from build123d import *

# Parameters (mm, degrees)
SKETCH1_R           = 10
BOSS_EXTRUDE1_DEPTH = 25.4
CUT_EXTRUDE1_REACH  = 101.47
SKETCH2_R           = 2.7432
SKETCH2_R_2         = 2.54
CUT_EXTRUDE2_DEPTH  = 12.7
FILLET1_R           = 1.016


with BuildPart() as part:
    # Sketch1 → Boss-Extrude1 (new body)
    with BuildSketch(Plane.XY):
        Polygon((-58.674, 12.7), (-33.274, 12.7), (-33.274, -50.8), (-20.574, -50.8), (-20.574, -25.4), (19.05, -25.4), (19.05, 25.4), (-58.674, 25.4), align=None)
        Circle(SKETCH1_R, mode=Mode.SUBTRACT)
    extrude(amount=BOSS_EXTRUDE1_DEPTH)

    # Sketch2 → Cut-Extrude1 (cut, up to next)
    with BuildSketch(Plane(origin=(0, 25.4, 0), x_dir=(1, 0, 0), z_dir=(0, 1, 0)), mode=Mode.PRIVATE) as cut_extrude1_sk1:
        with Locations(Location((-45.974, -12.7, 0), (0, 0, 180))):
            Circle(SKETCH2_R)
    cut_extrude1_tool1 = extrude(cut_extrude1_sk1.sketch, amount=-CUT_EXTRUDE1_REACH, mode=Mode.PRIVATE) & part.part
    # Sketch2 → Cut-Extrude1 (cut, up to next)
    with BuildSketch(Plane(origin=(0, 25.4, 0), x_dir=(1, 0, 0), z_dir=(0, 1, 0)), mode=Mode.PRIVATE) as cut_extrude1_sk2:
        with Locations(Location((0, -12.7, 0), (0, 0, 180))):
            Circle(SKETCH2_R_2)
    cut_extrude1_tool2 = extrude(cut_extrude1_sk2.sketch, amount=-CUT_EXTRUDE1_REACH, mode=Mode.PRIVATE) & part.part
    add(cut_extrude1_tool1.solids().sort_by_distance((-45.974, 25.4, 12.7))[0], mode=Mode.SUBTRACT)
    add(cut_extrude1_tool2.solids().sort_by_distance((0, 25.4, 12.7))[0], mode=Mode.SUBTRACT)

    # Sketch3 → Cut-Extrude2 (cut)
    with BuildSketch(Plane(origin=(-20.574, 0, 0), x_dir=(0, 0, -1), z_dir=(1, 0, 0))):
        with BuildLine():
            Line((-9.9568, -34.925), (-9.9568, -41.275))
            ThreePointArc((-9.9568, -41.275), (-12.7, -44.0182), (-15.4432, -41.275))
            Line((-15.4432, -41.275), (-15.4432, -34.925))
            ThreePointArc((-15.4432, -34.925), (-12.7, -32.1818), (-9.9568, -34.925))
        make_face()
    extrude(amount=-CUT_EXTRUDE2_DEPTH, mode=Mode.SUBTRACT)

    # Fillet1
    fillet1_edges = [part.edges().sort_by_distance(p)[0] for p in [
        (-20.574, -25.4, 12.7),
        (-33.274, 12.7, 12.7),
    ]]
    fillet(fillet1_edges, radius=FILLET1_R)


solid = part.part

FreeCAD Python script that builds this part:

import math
import FreeCAD as App
import Part
import Sketcher
from FreeCAD import Vector
Q = App.Units.Quantity


def edges_at(feature, points):
    """Names of the edges that pass closest to the given points."""
    edges = feature.Shape.Edges
    near = lambda p: min(range(len(edges)), key=lambda i: edges[i].distToShape(Part.Vertex(*p))[0])
    return sorted({f"Edge{near(p) + 1}" for p in points})


def add_polygon(sketch, points):
    """Adds a closed chain of lines whose ends are joined by coincident constraints."""
    first, n = sketch.GeometryCount, len(points)
    for a, b in zip(points, points[1:] + points[:1]):
        sketch.addGeometry(Part.LineSegment(App.Vector(*a, 0), App.Vector(*b, 0)), False)
    for i in range(n):
        sketch.addConstraint(Sketcher.Constraint("Coincident", first + i, 2, first + (i + 1) % n, 1))

doc = App.newDocument("Part")
body = doc.addObject("PartDesign::Body", "Body")

# Sketch on XY plane
sketch1 = body.newObject("Sketcher::SketchObject", "Sketch")
sketch1.AttachmentSupport = (doc.getObject("XY_Plane"), [""])
sketch1.MapMode = "FlatFace"
add_polygon(sketch1, [(-58.674, 12.7), (-33.274, 12.7), (-33.274, -50.8), (-20.574, -50.8), (-20.574, -25.4), (19.05, -25.4), (19.05, 25.4), (-58.674, 25.4)])  # lines 0-7
sketch1.addGeometry(Part.Circle(Vector(0, 0, 0), Vector(0, 0, 1), 10), False)  # 8
sketch1.addConstraint([
    Sketcher.Constraint("Horizontal", 0),
    Sketcher.Constraint("Vertical", 1),
    Sketcher.Constraint("Horizontal", 2),
    Sketcher.Constraint("Vertical", 3),
    Sketcher.Constraint("Horizontal", 4),
    Sketcher.Constraint("Vertical", 5),
    Sketcher.Constraint("Horizontal", 6),
    Sketcher.Constraint("Vertical", 7),
    Sketcher.Constraint("Coincident", 8, 3, -1, 1),
    Sketcher.Constraint("Equal", 0, 3),
    Sketcher.Constraint("Equal", 2, 7),
    Sketcher.Constraint("DistanceX", 0, 1, 0, 2, Q("1 in")),
    Sketcher.Constraint("DistanceY", 5, 1, 5, 2, Q("2 in")),
    Sketcher.Constraint("DistanceX", 2, 1, 2, 2, Q("0.5 in")),
    Sketcher.Constraint("DistanceY", 1, 2, -1, 1, Q("2 in")),
    Sketcher.Constraint("DistanceX", 4, 1, 4, 2, Q("1.56 in")),
    Sketcher.Constraint("Diameter", 8, Q("20 mm")),
    Sketcher.Constraint("DistanceX", 0, 2, -1, 1, Q("1.31 in")),
])
pad1 = body.newObject("PartDesign::Pad", "Pad")
pad1.Profile = sketch1
pad1.Length = Q("1 in")

# Sketch on XZ plane
sketch2 = body.newObject("Sketcher::SketchObject", "Sketch001")
sketch2.AttachmentSupport = (doc.getObject("XZ_Plane"), [""])
sketch2.MapMode = "FlatFace"
sketch2.AttachmentOffset = App.Placement(Vector(0, 0, -1 * 25.4), App.Rotation())
sketch2.addGeometry(Part.Circle(Vector(-45.974, 12.7, 0), Vector(0, 0, 1), 2.7432), False)
sketch2.addConstraint([
    Sketcher.Constraint("Diameter", 0, Q("0.216 in")),
    Sketcher.Constraint("DistanceY", -1, 1, 0, 3, Q("0.5 in")),
    Sketcher.Constraint("DistanceX", 0, 3, -1, 1, Q("1.81 in")),
])
pocket1 = body.newObject("PartDesign::Pocket", "Pocket")
pocket1.Profile = sketch2
pocket1.Type = "UpToFirst"
pocket1.Reversed = True

# Sketch on XZ plane
sketch3 = body.newObject("Sketcher::SketchObject", "Sketch002")
sketch3.AttachmentSupport = (doc.getObject("XZ_Plane"), [""])
sketch3.MapMode = "FlatFace"
sketch3.AttachmentOffset = App.Placement(Vector(0, 0, -1 * 25.4), App.Rotation())
sketch3.addGeometry(Part.Circle(Vector(0, 12.7, 0), Vector(0, 0, 1), 2.54), False)
sketch3.addConstraint([
    Sketcher.Constraint("PointOnObject", 0, 3, -2),
    Sketcher.Constraint("Diameter", 0, Q("0.2 in")),
    Sketcher.Constraint("DistanceY", -1, 1, 0, 3, Q("0.5 in")),
])
pocket2 = body.newObject("PartDesign::Pocket", "Pocket001")
pocket2.Profile = sketch3
pocket2.Type = "UpToFirst"
pocket2.Reversed = True

# Sketch on YZ plane
sketch4 = body.newObject("Sketcher::SketchObject", "Sketch003")
sketch4.AttachmentSupport = (doc.getObject("YZ_Plane"), [""])
sketch4.MapMode = "FlatFace"
sketch4.AttachmentOffset = App.Placement(Vector(0, 0, -0.81 * 25.4), App.Rotation())
sketch4.addGeometry([
    Part.LineSegment(Vector(-41.275, 9.9568, 0), Vector(-34.925, 9.9568, 0)),
    Part.ArcOfCircle(Part.Circle(Vector(-34.925, 12.7, 0), Vector(0, 0, 1), 2.7432), math.radians(-90), math.radians(90)),
    Part.LineSegment(Vector(-34.925, 15.4432, 0), Vector(-41.275, 15.4432, 0)),
    Part.ArcOfCircle(Part.Circle(Vector(-41.275, 12.7, 0), Vector(0, 0, 1), 2.7432), math.radians(90), math.radians(270)),
], False)
sketch4.addConstraint([
    Sketcher.Constraint("Tangent", 0, 2, 1, 1),
    Sketcher.Constraint("Tangent", 1, 2, 2, 1),
    Sketcher.Constraint("Tangent", 2, 2, 3, 1),
    Sketcher.Constraint("Tangent", 3, 2, 0, 1),
    Sketcher.Constraint("Horizontal", 0),
    Sketcher.Constraint("Horizontal", 2),
    Sketcher.Constraint("Radius", 1, Q("0.108 in")),
    Sketcher.Constraint("DistanceX", 0, 1, 0, 2, Q("0.25 in")),
    Sketcher.Constraint("DistanceY", -1, 1, 1, 3, Q("0.5 in")),
    Sketcher.Constraint("DistanceX", 1, 3, -1, 1, Q("1.375 in")),
])
pocket3 = body.newObject("PartDesign::Pocket", "Pocket002")
pocket3.Profile = sketch4
pocket3.Length = Q("0.5 in")
doc.recompute()

fillet = body.newObject("PartDesign::Fillet", "Fillet")
fillet.Base = (pocket3, edges_at(pocket3, [(-20.574, -25.4, 12.7), (-33.274, 12.7, 12.7)]))
fillet.Radius = Q("0.04 in")

doc.recompute()
